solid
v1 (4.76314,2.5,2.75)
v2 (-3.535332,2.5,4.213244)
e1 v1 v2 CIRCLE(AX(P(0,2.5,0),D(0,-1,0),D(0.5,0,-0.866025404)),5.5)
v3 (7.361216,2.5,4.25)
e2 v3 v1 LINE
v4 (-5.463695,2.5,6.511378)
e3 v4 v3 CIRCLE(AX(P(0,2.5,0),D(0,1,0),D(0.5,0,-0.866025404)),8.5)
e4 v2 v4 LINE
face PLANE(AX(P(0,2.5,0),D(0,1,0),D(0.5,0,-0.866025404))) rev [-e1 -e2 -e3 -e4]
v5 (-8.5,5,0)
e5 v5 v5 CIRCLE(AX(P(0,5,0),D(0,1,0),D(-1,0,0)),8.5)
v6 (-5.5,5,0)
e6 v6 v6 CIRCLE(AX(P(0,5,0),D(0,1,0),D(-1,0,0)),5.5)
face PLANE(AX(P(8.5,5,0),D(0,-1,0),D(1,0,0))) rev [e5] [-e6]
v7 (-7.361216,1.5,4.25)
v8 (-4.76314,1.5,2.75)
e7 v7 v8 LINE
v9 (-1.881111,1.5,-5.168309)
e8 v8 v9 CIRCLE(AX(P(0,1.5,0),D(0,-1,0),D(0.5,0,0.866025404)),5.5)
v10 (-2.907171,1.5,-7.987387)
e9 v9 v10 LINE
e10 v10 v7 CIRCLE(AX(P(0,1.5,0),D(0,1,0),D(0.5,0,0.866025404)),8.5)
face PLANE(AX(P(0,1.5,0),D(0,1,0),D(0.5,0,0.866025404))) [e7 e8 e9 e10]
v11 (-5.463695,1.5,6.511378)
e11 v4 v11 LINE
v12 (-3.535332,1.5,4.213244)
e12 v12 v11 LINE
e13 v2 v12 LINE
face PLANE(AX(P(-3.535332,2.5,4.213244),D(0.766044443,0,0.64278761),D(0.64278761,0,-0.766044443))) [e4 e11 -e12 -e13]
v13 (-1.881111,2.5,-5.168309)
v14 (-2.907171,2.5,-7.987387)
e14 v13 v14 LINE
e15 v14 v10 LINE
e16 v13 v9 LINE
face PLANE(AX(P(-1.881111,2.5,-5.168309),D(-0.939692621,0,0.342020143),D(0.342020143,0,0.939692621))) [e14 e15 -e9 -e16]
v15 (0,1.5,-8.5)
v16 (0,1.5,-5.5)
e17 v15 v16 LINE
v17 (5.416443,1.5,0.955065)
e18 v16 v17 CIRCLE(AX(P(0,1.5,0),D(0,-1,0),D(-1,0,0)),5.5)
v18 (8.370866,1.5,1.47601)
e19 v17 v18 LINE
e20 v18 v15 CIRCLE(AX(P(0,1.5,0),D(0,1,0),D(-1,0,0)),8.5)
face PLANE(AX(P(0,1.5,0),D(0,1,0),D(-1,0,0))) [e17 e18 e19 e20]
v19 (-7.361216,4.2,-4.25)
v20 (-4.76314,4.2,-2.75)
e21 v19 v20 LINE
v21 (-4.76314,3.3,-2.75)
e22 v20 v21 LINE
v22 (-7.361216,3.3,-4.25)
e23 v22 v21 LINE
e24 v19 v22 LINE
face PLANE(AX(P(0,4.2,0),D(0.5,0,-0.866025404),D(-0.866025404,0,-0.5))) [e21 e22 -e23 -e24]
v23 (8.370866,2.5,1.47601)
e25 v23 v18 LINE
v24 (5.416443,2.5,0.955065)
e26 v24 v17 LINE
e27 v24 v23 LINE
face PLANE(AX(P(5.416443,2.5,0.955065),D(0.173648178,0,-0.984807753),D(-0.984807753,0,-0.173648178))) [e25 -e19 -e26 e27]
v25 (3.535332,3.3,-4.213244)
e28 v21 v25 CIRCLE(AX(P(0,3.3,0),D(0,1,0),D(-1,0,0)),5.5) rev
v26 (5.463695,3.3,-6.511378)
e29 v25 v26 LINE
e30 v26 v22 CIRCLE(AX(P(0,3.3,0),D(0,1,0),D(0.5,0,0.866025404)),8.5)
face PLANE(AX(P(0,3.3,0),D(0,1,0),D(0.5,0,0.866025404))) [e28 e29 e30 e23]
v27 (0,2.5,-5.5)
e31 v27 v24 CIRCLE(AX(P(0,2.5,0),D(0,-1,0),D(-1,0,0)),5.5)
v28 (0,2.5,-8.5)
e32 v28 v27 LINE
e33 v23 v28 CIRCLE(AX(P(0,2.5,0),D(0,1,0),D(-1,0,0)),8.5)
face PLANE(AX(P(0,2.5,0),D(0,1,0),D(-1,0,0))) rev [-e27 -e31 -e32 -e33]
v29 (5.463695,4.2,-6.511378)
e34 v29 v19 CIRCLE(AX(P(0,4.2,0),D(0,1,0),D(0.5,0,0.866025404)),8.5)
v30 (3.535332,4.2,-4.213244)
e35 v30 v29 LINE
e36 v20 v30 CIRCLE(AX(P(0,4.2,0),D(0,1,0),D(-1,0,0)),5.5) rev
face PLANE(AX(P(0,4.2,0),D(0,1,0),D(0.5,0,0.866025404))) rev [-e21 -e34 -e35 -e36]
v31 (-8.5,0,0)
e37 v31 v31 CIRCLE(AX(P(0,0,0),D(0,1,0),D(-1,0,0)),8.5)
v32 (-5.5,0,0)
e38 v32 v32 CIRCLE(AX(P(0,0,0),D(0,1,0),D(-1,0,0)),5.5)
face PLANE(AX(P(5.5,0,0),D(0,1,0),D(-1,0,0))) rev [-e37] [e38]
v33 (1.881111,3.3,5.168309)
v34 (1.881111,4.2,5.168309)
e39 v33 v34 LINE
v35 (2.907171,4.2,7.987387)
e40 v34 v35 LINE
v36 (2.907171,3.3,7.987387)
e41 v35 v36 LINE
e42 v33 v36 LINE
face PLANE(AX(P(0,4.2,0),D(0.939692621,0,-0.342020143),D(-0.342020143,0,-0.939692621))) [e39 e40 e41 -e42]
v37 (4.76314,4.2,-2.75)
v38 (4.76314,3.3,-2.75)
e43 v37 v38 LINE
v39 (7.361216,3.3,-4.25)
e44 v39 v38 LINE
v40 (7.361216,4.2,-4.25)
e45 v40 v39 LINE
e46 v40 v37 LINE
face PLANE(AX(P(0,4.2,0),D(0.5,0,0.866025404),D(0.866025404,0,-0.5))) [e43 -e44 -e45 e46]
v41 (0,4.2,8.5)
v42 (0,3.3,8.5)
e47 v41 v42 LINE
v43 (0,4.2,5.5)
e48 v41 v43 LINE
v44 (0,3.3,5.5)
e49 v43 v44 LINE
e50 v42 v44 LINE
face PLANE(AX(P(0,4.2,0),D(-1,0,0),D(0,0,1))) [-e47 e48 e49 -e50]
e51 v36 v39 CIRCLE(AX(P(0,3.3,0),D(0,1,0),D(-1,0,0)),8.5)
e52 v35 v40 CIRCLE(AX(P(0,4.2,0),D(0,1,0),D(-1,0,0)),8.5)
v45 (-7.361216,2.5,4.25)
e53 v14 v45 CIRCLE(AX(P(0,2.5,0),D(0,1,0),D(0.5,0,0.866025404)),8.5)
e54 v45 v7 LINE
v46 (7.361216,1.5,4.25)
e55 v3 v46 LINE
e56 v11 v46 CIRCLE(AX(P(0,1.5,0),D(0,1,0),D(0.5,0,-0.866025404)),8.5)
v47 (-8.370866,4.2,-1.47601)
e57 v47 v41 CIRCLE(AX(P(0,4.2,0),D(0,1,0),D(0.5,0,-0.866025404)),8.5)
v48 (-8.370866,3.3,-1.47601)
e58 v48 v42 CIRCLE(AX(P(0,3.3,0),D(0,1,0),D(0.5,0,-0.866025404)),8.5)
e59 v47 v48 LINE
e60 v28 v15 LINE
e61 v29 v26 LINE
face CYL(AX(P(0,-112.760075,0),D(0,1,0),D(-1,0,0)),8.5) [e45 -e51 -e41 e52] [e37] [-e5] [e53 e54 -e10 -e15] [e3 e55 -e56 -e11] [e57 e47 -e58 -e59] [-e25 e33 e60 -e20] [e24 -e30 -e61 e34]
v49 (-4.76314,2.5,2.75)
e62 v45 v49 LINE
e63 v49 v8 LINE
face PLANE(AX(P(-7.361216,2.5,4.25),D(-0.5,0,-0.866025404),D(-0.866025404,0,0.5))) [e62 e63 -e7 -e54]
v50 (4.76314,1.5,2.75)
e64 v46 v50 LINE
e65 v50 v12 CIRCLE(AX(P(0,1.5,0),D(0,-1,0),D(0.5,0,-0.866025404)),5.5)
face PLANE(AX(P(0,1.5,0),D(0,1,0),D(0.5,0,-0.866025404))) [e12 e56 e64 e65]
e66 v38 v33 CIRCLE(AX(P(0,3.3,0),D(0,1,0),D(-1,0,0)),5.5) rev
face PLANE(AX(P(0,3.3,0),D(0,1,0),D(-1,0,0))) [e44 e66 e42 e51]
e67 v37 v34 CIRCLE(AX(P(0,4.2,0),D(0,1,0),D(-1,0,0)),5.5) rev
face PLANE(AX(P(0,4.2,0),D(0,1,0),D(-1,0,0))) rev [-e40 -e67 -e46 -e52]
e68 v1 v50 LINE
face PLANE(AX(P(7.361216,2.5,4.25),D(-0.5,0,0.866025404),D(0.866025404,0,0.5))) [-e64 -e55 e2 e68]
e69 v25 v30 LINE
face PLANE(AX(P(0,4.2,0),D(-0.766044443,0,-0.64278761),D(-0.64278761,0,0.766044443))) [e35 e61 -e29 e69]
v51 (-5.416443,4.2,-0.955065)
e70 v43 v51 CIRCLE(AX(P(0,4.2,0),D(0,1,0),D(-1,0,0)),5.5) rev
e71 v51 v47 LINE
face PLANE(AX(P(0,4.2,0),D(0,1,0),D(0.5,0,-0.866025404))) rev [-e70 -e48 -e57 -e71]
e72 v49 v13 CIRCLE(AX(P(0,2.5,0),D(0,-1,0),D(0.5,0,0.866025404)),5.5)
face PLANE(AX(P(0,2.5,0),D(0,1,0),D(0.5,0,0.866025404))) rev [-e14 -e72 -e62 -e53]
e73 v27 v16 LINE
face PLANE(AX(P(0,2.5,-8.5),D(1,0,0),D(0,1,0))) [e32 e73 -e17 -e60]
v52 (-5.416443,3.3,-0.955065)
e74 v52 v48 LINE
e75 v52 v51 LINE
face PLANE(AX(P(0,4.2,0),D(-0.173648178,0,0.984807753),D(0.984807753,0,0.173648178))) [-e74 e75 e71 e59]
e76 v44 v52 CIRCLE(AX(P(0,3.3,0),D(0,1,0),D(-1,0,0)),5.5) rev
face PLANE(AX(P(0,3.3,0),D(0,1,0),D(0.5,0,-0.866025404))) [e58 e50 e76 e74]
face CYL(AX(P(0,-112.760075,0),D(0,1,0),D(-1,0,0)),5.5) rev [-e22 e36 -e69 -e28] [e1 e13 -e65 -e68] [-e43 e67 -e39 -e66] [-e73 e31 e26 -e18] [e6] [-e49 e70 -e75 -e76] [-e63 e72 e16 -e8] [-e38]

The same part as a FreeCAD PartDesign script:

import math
import FreeCAD as App
import Part
import Sketcher

V = App.Vector
Q = App.Units.Quantity


def add_polygon(sketch, points):
    """Adds a closed chain of lines whose ends are joined by coincident constraints."""
    first, n = sketch.GeometryCount, len(points)
    for a, b in zip(points, points[1:] + points[:1]):
        sketch.addGeometry(Part.LineSegment(App.Vector(*a, 0), App.Vector(*b, 0)), False)
    for i in range(n):
        sketch.addConstraint(Sketcher.Constraint("Coincident", first + i, 2, first + (i + 1) % n, 1))

doc = App.newDocument("Part")
body = doc.addObject("PartDesign::Body", "Body")

sketch1 = body.newObject("Sketcher::SketchObject", "Sketch")
sketch1.AttachmentSupport = (doc.getObject("XY_Plane"), [""])
sketch1.MapMode = "FlatFace"
add_polygon(sketch1, [(5.5, 5), (5.5, 0), (8.5, 0), (8.5, 5)])
sketch1.addConstraint([
    Sketcher.Constraint("Vertical", 0),
    Sketcher.Constraint("Horizontal", 1),
    Sketcher.Constraint("Vertical", 2),
    Sketcher.Constraint("Horizontal", 3),
    Sketcher.Constraint("PointOnObject", 0, 2, -1),
    Sketcher.Constraint("DistanceX", 1, 1, 1, 2, 3.0),
    Sketcher.Constraint("DistanceY", 0, 2, 0, 1, 5.0),
    Sketcher.Constraint("DistanceX", -1, 1, 0, 2, 5.5),
])
revolution = body.newObject("PartDesign::Revolution", "Revolution")
revolution.Profile = sketch1
revolution.ReferenceAxis = (sketch1, ["V_Axis"])
revolution.Angle = 360

sketch2 = body.newObject("Sketcher::SketchObject", "Sketch001")
sketch2.AttachmentSupport = (doc.getObject("XZ_Plane"), [""])
sketch2.MapMode = "FlatFace"
sketch2.AttachmentOffset = App.Placement(V(0, 0, -1.5), App.Rotation())
sketch2.addGeometry([
    Part.LineSegment(V(0, -8.5, 0), V(0, -5.5, 0)),
    Part.ArcOfCircle(Part.Circle(V(0, 0, 0), V(0, 0, 1), 5.5), math.radians(-90), math.radians(10)),
    Part.LineSegment(V(5.4, 1, 0), V(8.4, 1.5, 0)),
    Part.ArcOfCircle(Part.Circle(V(0, 0, 0), V(0, 0, 1), 8.5), math.radians(-90), math.radians(10)),
], False)
sketch2.addConstraint([
    Sketcher.Constraint("Coincident", 0, 2, 1, 1),
    Sketcher.Constraint("Coincident", 1, 2, 2, 1),
    Sketcher.Constraint("Coincident", 2, 2, 3, 2),
    Sketcher.Constraint("Coincident", 3, 1, 0, 1),
    Sketcher.Constraint("Vertical", 0),
    Sketcher.Constraint("Coincident", 1, 3, -1, 1),
    Sketcher.Constraint("Coincident", 3, 3, -1, 1),
    Sketcher.Constraint("PointOnObject", 0, 2, -2),
    Sketcher.Constraint("Radius", 1, 5.5),
    Sketcher.Constraint("Radius", 3, 8.5),
    Sketcher.Constraint("Angle", 2, Q("10 deg")),
    Sketcher.Constraint("DistanceY", -1, 1, 2, 2, 1.47601),
])
pocket1 = body.newObject("PartDesign::Pocket", "Pocket")
pocket1.Profile = sketch2
pocket1.Length = 1
doc.recompute()

polarpattern = body.newObject("PartDesign::PolarPattern", "PolarPattern")
polarpattern.Originals = [pocket1]
polarpattern.Axis = (doc.getObject("Y_Axis"), [""])
polarpattern.Angle = 360
polarpattern.Occurrences = 3
body.Tip = polarpattern

sketch3 = body.newObject("Sketcher::SketchObject", "Sketch002")
sketch3.AttachmentSupport = (doc.getObject("XZ_Plane"), [""])
sketch3.MapMode = "FlatFace"
sketch3.AttachmentOffset = App.Placement(V(0, 0, -4.2), App.Rotation())
sketch3.addGeometry([
    Part.LineSegment(V(7, -4, 0), V(0, 0, 0)),
    Part.LineSegment(V(0, 0, 0), V(3, 8, 0)),
    Part.ArcOfCircle(Part.Circle(V(0, 0, 0), V(0, 0, 1), 8), math.radians(-30), math.radians(70)),
], False)
sketch3.addConstraint([
    Sketcher.Constraint("Coincident", 0, 2, 1, 1),
    Sketcher.Constraint("Coincident", 1, 2, 2, 2),
    Sketcher.Constraint("Coincident", 2, 1, 0, 1),
    Sketcher.Constraint("Coincident", 2, 3, -1, 1),
    Sketcher.Constraint("Coincident", 0, 2, -1, 1),
    Sketcher.Constraint("Radius", 2, 8.5),
    Sketcher.Constraint("Angle", 0, Q("150 deg")),
    Sketcher.Constraint("Angle", 1, Q("70 deg")),
])
pocket2 = body.newObject("PartDesign::Pocket", "Pocket001")
pocket2.Profile = sketch3
pocket2.Length = 0.9
pocket2.Reversed = True
doc.recompute()

polarpattern2 = body.newObject("PartDesign::PolarPattern", "PolarPattern001")
polarpattern2.Originals = [pocket2]
polarpattern2.Axis = (doc.getObject("Y_Axis"), [""])
polarpattern2.Angle = 360
polarpattern2.Occurrences = 3
body.Tip = polarpattern2

doc.recompute()
